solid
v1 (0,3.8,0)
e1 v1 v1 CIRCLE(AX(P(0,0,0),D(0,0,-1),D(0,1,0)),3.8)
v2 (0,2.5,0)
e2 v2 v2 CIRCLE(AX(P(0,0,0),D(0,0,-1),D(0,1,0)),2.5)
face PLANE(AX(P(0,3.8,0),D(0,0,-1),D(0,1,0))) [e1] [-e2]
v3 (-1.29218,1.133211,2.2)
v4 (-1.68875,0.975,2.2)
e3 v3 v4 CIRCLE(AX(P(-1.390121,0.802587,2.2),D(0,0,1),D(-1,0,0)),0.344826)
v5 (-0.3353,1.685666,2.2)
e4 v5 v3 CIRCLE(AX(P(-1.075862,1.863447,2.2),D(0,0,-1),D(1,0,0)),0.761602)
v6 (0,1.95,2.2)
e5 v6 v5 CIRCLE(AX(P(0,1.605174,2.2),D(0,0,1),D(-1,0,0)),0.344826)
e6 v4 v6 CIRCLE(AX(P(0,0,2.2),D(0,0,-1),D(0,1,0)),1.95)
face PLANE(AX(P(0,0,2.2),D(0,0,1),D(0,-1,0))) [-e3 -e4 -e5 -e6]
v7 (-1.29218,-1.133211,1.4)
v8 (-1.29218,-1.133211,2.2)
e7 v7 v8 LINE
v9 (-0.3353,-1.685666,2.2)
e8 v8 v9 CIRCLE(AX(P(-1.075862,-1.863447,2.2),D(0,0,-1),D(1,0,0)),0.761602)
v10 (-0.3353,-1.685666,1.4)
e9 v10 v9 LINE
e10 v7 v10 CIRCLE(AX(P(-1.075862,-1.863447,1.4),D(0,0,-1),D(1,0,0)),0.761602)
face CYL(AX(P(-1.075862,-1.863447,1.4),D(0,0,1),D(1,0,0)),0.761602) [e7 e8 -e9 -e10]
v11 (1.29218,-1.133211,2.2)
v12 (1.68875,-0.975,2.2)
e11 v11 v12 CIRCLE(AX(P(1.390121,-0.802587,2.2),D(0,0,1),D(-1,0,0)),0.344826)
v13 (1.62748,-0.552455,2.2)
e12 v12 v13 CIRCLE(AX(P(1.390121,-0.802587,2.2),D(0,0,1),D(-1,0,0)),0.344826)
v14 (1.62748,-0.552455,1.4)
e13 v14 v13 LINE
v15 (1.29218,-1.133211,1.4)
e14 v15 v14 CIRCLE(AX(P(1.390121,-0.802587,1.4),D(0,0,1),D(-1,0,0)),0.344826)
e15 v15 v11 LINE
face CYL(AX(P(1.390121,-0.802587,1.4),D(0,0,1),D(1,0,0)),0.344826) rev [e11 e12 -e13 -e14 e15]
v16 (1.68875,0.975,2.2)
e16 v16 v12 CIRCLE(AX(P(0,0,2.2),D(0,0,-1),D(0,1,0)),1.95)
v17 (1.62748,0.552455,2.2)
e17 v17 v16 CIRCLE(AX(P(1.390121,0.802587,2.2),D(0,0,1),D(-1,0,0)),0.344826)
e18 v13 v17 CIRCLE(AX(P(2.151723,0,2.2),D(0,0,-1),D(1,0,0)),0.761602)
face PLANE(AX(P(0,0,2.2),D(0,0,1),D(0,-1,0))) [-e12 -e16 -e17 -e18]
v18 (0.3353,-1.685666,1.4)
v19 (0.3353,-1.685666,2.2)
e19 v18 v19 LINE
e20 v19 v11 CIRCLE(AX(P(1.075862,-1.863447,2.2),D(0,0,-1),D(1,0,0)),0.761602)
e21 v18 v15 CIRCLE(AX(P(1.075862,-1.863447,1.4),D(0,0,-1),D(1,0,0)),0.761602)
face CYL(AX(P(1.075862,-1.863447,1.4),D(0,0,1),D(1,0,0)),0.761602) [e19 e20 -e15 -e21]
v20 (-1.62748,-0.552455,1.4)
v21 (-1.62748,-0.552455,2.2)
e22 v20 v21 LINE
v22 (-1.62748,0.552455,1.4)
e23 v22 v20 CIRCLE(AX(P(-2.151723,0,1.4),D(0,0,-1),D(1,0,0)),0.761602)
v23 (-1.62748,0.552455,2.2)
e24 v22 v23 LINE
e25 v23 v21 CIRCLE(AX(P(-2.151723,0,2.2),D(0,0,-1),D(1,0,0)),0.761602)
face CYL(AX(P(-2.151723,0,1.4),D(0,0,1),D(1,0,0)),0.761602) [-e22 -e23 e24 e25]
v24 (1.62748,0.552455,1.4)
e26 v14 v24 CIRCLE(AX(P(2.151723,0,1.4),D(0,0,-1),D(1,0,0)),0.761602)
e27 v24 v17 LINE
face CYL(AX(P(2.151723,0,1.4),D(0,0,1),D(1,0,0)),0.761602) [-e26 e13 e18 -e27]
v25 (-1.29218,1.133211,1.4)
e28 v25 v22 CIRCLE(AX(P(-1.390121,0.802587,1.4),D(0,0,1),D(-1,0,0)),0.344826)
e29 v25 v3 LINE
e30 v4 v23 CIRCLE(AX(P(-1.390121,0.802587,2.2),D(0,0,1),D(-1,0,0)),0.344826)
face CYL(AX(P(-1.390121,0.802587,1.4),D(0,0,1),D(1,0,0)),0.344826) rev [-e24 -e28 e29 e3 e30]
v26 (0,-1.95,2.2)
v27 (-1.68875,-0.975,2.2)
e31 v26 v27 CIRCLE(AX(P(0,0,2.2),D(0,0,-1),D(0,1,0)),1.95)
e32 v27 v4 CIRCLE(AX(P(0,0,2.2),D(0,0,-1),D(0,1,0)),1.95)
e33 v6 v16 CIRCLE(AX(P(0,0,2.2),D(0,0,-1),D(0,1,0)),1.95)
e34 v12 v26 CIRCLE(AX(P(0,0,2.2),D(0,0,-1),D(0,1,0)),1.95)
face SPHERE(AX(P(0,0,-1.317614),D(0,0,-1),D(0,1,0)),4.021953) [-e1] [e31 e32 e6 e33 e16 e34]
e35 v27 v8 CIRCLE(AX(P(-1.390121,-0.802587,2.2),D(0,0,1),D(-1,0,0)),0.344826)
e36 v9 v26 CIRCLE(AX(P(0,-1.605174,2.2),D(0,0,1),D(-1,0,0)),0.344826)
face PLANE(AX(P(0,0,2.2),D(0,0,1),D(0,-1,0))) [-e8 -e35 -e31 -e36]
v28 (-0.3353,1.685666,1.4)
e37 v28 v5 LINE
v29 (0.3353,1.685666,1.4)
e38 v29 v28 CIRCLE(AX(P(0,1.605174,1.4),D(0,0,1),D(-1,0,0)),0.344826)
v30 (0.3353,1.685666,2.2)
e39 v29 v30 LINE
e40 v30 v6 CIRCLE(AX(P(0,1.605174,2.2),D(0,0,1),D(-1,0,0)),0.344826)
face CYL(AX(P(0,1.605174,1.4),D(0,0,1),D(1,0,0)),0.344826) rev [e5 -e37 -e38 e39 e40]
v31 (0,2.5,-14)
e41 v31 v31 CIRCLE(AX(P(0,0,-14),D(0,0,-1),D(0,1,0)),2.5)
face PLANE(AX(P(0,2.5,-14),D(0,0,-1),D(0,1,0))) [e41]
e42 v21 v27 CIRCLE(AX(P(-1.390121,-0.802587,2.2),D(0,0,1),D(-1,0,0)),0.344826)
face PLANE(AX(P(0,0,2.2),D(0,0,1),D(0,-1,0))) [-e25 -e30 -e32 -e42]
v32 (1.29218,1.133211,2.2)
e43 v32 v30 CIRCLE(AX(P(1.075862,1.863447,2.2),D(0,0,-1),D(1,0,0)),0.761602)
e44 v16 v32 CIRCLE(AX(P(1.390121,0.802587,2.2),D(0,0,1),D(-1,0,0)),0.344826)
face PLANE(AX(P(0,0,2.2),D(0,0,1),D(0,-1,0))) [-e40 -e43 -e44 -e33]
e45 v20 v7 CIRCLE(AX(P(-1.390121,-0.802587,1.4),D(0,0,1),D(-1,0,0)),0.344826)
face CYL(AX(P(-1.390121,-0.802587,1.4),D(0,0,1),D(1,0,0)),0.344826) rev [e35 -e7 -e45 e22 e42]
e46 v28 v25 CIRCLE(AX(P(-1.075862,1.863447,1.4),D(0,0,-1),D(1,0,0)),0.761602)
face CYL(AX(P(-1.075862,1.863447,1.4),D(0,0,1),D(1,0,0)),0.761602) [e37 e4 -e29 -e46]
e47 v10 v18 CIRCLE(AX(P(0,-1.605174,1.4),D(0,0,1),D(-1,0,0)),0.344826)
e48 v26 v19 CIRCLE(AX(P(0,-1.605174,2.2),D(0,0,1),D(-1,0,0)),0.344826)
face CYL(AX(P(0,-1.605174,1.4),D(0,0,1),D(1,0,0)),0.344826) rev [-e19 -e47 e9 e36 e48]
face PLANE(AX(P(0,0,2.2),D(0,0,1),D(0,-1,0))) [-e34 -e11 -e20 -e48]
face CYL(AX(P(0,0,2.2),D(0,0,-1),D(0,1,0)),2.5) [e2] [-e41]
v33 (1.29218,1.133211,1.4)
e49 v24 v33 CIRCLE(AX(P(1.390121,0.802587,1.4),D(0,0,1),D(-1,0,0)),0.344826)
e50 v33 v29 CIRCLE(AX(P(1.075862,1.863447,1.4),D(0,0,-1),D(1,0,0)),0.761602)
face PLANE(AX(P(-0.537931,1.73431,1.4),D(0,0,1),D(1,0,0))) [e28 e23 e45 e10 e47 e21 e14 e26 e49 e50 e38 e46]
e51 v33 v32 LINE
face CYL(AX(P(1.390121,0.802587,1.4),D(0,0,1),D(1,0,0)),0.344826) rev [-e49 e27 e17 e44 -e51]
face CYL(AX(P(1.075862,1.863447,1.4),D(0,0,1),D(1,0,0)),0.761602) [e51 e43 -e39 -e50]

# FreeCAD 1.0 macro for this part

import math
import FreeCAD as App
import Part
import Sketcher

V = App.Vector

doc = App.newDocument("Part")
body = doc.addObject("PartDesign::Body", "Body")

# Sketch on YZ plane
sketch1 = body.newObject("Sketcher::SketchObject", "Sketch")
sketch1.AttachmentSupport = (doc.getObject("YZ_Plane"), [""])
sketch1.MapMode = "FlatFace"
sketch1.addGeometry([
    Part.LineSegment(V(1.9, 2.2, 0), V(0, 2.2, 0)),  # 0
    Part.LineSegment(V(0, 2.2, 0), V(0, -14, 0)),  # 1
    Part.LineSegment(V(0, -14, 0), V(2.5, -14, 0)),  # 2
    Part.LineSegment(V(2.5, -14, 0), V(2.5, 0, 0)),  # 3
    Part.LineSegment(V(2.5, 0, 0), V(3.8, 0, 0)),  # 4
    Part.ArcOfCircle(Part.Circle(V(0, -1.3, 0), V(0, 0, 1), 4), math.radians(19), math.radians(61)),  # 5
], False)
sketch1.addConstraint([
    Sketcher.Constraint("Coincident", 0, 2, 1, 1),
    Sketcher.Constraint("Coincident", 1, 2, 2, 1),
    Sketcher.Constraint("Coincident", 2, 2, 3, 1),
    Sketcher.Constraint("Coincident", 3, 2, 4, 1),
    Sketcher.Constraint("Coincident", 4, 2, 5, 1),
    Sketcher.Constraint("Coincident", 5, 2, 0, 1),
    Sketcher.Constraint("Horizontal", 0),
    Sketcher.Constraint("Vertical", 1),
    Sketcher.Constraint("Horizontal", 2),
    Sketcher.Constraint("Vertical", 3),
    Sketcher.Constraint("Horizontal", 4),
    Sketcher.Constraint("PointOnObject", 5, 3, -2),
    Sketcher.Constraint("PointOnObject", 0, 2, -2),
    Sketcher.Constraint("PointOnObject", 3, 2, -1),
    Sketcher.Constraint("DistanceY", 3, 1, 3, 2, 14.0),
    Sketcher.Constraint("DistanceX", 2, 1, 2, 2, 2.5),
    Sketcher.Constraint("DistanceX", 4, 1, 4, 2, 1.3),
    Sketcher.Constraint("DistanceY", 1, 2, 1, 1, 16.2),
    Sketcher.Constraint("DistanceX", 0, 2, 0, 1, 1.95),
])
revolution = body.newObject("PartDesign::Revolution", "Revolution")
revolution.Profile = sketch1
revolution.ReferenceAxis = (sketch1, ["V_Axis"])
revolution.Angle = 360

# Sketch on XY plane
sketch2 = body.newObject("Sketcher::SketchObject", "Sketch001")
sketch2.AttachmentSupport = (doc.getObject("XY_Plane"), [""])
sketch2.MapMode = "FlatFace"
sketch2.AttachmentOffset = App.Placement(V(0, 0, 2.2), App.Rotation())
sketch2.addGeometry([
    Part.ArcOfCircle(Part.Circle(V(0, 1.61, 0), V(0, 0, 1), 0.34), math.radians(13), math.radians(167)),  # 0
    Part.ArcOfCircle(Part.Circle(V(-1.08, 1.86, 0), V(0, 0, 1), 0.76), math.radians(-107), math.radians(-13)),  # 1
    Part.ArcOfCircle(Part.Circle(V(-1.39, 0.8, 0), V(0, 0, 1), 0.34), math.radians(73), math.radians(227)),  # 2
    Part.ArcOfCircle(Part.Circle(V(-2.15, 0, 0), V(0, 0, 1), 0.76), math.radians(-47), math.radians(47)),  # 3
    Part.ArcOfCircle(Part.Circle(V(-1.39, -0.8, 0), V(0, 0, 1), 0.34), math.radians(133), math.radians(287)),  # 4
    Part.ArcOfCircle(Part.Circle(V(-1.08, -1.86, 0), V(0, 0, 1), 0.76), math.radians(13), math.radians(107)),  # 5
    Part.ArcOfCircle(Part.Circle(V(0, -1.61, 0), V(0, 0, 1), 0.34), math.radians(-167), math.radians(-13)),  # 6
    Part.ArcOfCircle(Part.Circle(V(1.08, -1.86, 0), V(0, 0, 1), 0.76), math.radians(73), math.radians(167)),  # 7
    Part.ArcOfCircle(Part.Circle(V(1.39, -0.8, 0), V(0, 0, 1), 0.34), math.radians(-107), math.radians(47)),  # 8
    Part.ArcOfCircle(Part.Circle(V(2.15, 0, 0), V(0, 0, 1), 0.76), math.radians(133), math.radians(227)),  # 9
    Part.ArcOfCircle(Part.Circle(V(1.39, 0.8, 0), V(0, 0, 1), 0.34), math.radians(-47), math.radians(107)),  # 10
    Part.ArcOfCircle(Part.Circle(V(1.08, 1.86, 0), V(0, 0, 1), 0.76), math.radians(-167), math.radians(-73)),  # 11
], False)
sketch2.addConstraint([
    Sketcher.Constraint("Tangent", 0, 2, 1, 2),
    Sketcher.Constraint("Tangent", 1, 1, 2, 1),
    Sketcher.Constraint("Tangent", 2, 2, 3, 2),
    Sketcher.Constraint("Tangent", 3, 1, 4, 1),
    Sketcher.Constraint("Tangent", 4, 2, 5, 2),
    Sketcher.Constraint("Tangent", 5, 1, 6, 1),
    Sketcher.Constraint("Tangent", 6, 2, 7, 2),
    Sketcher.Constraint("Tangent", 7, 1, 8, 1),
    Sketcher.Constraint("Tangent", 8, 2, 9, 2),
    Sketcher.Constraint("Tangent", 9, 1, 10, 1),
    Sketcher.Constraint("Tangent", 10, 2, 11, 2),
    Sketcher.Constraint("Tangent", 11, 1, 0, 1),
    Sketcher.Constraint("Equal", 0, 2),
    Sketcher.Constraint("Equal", 1, 3),
    Sketcher.Constraint("Equal", 2, 4),
    Sketcher.Constraint("Equal", 3, 5),
    Sketcher.Constraint("Equal", 4, 6),
    Sketcher.Constraint("Equal", 5, 7),
    Sketcher.Constraint("Equal", 6, 8),
    Sketcher.Constraint("Equal", 7, 9),
    Sketcher.Constraint("Equal", 8, 10),
    Sketcher.Constraint("Equal", 9, 11),
    Sketcher.Constraint("Symmetric", 0, 3, 6, 3, -1, 1),
    Sketcher.Constraint("Symmetric", 2, 3, 8, 3, -1, 1),
    Sketcher.Constraint("Symmetric", 4, 3, 10, 3, -1, 1),
    Sketcher.Constraint("Symmetric", 5, 3, 7, 3, -2),
    Sketcher.Constraint("PointOnObject", 3, 3, -1),
    Sketcher.Constraint("Radius", 1, 0.761602),
    Sketcher.Constraint("Radius", 0, 0.344826),
    Sketcher.Constraint("DistanceX", 0, 2, -1, 1, 0.3353),
    Sketcher.Constraint("DistanceX", 3, 3, 2, 3, 0.761602),
    Sketcher.Constraint("DistanceX", 2, 2, 1, 1, 0.3353),
])
pocket1 = body.newObject("PartDesign::Pocket", "Pocket")
pocket1.Profile = sketch2
pocket1.Length = 0.8

doc.recompute()
